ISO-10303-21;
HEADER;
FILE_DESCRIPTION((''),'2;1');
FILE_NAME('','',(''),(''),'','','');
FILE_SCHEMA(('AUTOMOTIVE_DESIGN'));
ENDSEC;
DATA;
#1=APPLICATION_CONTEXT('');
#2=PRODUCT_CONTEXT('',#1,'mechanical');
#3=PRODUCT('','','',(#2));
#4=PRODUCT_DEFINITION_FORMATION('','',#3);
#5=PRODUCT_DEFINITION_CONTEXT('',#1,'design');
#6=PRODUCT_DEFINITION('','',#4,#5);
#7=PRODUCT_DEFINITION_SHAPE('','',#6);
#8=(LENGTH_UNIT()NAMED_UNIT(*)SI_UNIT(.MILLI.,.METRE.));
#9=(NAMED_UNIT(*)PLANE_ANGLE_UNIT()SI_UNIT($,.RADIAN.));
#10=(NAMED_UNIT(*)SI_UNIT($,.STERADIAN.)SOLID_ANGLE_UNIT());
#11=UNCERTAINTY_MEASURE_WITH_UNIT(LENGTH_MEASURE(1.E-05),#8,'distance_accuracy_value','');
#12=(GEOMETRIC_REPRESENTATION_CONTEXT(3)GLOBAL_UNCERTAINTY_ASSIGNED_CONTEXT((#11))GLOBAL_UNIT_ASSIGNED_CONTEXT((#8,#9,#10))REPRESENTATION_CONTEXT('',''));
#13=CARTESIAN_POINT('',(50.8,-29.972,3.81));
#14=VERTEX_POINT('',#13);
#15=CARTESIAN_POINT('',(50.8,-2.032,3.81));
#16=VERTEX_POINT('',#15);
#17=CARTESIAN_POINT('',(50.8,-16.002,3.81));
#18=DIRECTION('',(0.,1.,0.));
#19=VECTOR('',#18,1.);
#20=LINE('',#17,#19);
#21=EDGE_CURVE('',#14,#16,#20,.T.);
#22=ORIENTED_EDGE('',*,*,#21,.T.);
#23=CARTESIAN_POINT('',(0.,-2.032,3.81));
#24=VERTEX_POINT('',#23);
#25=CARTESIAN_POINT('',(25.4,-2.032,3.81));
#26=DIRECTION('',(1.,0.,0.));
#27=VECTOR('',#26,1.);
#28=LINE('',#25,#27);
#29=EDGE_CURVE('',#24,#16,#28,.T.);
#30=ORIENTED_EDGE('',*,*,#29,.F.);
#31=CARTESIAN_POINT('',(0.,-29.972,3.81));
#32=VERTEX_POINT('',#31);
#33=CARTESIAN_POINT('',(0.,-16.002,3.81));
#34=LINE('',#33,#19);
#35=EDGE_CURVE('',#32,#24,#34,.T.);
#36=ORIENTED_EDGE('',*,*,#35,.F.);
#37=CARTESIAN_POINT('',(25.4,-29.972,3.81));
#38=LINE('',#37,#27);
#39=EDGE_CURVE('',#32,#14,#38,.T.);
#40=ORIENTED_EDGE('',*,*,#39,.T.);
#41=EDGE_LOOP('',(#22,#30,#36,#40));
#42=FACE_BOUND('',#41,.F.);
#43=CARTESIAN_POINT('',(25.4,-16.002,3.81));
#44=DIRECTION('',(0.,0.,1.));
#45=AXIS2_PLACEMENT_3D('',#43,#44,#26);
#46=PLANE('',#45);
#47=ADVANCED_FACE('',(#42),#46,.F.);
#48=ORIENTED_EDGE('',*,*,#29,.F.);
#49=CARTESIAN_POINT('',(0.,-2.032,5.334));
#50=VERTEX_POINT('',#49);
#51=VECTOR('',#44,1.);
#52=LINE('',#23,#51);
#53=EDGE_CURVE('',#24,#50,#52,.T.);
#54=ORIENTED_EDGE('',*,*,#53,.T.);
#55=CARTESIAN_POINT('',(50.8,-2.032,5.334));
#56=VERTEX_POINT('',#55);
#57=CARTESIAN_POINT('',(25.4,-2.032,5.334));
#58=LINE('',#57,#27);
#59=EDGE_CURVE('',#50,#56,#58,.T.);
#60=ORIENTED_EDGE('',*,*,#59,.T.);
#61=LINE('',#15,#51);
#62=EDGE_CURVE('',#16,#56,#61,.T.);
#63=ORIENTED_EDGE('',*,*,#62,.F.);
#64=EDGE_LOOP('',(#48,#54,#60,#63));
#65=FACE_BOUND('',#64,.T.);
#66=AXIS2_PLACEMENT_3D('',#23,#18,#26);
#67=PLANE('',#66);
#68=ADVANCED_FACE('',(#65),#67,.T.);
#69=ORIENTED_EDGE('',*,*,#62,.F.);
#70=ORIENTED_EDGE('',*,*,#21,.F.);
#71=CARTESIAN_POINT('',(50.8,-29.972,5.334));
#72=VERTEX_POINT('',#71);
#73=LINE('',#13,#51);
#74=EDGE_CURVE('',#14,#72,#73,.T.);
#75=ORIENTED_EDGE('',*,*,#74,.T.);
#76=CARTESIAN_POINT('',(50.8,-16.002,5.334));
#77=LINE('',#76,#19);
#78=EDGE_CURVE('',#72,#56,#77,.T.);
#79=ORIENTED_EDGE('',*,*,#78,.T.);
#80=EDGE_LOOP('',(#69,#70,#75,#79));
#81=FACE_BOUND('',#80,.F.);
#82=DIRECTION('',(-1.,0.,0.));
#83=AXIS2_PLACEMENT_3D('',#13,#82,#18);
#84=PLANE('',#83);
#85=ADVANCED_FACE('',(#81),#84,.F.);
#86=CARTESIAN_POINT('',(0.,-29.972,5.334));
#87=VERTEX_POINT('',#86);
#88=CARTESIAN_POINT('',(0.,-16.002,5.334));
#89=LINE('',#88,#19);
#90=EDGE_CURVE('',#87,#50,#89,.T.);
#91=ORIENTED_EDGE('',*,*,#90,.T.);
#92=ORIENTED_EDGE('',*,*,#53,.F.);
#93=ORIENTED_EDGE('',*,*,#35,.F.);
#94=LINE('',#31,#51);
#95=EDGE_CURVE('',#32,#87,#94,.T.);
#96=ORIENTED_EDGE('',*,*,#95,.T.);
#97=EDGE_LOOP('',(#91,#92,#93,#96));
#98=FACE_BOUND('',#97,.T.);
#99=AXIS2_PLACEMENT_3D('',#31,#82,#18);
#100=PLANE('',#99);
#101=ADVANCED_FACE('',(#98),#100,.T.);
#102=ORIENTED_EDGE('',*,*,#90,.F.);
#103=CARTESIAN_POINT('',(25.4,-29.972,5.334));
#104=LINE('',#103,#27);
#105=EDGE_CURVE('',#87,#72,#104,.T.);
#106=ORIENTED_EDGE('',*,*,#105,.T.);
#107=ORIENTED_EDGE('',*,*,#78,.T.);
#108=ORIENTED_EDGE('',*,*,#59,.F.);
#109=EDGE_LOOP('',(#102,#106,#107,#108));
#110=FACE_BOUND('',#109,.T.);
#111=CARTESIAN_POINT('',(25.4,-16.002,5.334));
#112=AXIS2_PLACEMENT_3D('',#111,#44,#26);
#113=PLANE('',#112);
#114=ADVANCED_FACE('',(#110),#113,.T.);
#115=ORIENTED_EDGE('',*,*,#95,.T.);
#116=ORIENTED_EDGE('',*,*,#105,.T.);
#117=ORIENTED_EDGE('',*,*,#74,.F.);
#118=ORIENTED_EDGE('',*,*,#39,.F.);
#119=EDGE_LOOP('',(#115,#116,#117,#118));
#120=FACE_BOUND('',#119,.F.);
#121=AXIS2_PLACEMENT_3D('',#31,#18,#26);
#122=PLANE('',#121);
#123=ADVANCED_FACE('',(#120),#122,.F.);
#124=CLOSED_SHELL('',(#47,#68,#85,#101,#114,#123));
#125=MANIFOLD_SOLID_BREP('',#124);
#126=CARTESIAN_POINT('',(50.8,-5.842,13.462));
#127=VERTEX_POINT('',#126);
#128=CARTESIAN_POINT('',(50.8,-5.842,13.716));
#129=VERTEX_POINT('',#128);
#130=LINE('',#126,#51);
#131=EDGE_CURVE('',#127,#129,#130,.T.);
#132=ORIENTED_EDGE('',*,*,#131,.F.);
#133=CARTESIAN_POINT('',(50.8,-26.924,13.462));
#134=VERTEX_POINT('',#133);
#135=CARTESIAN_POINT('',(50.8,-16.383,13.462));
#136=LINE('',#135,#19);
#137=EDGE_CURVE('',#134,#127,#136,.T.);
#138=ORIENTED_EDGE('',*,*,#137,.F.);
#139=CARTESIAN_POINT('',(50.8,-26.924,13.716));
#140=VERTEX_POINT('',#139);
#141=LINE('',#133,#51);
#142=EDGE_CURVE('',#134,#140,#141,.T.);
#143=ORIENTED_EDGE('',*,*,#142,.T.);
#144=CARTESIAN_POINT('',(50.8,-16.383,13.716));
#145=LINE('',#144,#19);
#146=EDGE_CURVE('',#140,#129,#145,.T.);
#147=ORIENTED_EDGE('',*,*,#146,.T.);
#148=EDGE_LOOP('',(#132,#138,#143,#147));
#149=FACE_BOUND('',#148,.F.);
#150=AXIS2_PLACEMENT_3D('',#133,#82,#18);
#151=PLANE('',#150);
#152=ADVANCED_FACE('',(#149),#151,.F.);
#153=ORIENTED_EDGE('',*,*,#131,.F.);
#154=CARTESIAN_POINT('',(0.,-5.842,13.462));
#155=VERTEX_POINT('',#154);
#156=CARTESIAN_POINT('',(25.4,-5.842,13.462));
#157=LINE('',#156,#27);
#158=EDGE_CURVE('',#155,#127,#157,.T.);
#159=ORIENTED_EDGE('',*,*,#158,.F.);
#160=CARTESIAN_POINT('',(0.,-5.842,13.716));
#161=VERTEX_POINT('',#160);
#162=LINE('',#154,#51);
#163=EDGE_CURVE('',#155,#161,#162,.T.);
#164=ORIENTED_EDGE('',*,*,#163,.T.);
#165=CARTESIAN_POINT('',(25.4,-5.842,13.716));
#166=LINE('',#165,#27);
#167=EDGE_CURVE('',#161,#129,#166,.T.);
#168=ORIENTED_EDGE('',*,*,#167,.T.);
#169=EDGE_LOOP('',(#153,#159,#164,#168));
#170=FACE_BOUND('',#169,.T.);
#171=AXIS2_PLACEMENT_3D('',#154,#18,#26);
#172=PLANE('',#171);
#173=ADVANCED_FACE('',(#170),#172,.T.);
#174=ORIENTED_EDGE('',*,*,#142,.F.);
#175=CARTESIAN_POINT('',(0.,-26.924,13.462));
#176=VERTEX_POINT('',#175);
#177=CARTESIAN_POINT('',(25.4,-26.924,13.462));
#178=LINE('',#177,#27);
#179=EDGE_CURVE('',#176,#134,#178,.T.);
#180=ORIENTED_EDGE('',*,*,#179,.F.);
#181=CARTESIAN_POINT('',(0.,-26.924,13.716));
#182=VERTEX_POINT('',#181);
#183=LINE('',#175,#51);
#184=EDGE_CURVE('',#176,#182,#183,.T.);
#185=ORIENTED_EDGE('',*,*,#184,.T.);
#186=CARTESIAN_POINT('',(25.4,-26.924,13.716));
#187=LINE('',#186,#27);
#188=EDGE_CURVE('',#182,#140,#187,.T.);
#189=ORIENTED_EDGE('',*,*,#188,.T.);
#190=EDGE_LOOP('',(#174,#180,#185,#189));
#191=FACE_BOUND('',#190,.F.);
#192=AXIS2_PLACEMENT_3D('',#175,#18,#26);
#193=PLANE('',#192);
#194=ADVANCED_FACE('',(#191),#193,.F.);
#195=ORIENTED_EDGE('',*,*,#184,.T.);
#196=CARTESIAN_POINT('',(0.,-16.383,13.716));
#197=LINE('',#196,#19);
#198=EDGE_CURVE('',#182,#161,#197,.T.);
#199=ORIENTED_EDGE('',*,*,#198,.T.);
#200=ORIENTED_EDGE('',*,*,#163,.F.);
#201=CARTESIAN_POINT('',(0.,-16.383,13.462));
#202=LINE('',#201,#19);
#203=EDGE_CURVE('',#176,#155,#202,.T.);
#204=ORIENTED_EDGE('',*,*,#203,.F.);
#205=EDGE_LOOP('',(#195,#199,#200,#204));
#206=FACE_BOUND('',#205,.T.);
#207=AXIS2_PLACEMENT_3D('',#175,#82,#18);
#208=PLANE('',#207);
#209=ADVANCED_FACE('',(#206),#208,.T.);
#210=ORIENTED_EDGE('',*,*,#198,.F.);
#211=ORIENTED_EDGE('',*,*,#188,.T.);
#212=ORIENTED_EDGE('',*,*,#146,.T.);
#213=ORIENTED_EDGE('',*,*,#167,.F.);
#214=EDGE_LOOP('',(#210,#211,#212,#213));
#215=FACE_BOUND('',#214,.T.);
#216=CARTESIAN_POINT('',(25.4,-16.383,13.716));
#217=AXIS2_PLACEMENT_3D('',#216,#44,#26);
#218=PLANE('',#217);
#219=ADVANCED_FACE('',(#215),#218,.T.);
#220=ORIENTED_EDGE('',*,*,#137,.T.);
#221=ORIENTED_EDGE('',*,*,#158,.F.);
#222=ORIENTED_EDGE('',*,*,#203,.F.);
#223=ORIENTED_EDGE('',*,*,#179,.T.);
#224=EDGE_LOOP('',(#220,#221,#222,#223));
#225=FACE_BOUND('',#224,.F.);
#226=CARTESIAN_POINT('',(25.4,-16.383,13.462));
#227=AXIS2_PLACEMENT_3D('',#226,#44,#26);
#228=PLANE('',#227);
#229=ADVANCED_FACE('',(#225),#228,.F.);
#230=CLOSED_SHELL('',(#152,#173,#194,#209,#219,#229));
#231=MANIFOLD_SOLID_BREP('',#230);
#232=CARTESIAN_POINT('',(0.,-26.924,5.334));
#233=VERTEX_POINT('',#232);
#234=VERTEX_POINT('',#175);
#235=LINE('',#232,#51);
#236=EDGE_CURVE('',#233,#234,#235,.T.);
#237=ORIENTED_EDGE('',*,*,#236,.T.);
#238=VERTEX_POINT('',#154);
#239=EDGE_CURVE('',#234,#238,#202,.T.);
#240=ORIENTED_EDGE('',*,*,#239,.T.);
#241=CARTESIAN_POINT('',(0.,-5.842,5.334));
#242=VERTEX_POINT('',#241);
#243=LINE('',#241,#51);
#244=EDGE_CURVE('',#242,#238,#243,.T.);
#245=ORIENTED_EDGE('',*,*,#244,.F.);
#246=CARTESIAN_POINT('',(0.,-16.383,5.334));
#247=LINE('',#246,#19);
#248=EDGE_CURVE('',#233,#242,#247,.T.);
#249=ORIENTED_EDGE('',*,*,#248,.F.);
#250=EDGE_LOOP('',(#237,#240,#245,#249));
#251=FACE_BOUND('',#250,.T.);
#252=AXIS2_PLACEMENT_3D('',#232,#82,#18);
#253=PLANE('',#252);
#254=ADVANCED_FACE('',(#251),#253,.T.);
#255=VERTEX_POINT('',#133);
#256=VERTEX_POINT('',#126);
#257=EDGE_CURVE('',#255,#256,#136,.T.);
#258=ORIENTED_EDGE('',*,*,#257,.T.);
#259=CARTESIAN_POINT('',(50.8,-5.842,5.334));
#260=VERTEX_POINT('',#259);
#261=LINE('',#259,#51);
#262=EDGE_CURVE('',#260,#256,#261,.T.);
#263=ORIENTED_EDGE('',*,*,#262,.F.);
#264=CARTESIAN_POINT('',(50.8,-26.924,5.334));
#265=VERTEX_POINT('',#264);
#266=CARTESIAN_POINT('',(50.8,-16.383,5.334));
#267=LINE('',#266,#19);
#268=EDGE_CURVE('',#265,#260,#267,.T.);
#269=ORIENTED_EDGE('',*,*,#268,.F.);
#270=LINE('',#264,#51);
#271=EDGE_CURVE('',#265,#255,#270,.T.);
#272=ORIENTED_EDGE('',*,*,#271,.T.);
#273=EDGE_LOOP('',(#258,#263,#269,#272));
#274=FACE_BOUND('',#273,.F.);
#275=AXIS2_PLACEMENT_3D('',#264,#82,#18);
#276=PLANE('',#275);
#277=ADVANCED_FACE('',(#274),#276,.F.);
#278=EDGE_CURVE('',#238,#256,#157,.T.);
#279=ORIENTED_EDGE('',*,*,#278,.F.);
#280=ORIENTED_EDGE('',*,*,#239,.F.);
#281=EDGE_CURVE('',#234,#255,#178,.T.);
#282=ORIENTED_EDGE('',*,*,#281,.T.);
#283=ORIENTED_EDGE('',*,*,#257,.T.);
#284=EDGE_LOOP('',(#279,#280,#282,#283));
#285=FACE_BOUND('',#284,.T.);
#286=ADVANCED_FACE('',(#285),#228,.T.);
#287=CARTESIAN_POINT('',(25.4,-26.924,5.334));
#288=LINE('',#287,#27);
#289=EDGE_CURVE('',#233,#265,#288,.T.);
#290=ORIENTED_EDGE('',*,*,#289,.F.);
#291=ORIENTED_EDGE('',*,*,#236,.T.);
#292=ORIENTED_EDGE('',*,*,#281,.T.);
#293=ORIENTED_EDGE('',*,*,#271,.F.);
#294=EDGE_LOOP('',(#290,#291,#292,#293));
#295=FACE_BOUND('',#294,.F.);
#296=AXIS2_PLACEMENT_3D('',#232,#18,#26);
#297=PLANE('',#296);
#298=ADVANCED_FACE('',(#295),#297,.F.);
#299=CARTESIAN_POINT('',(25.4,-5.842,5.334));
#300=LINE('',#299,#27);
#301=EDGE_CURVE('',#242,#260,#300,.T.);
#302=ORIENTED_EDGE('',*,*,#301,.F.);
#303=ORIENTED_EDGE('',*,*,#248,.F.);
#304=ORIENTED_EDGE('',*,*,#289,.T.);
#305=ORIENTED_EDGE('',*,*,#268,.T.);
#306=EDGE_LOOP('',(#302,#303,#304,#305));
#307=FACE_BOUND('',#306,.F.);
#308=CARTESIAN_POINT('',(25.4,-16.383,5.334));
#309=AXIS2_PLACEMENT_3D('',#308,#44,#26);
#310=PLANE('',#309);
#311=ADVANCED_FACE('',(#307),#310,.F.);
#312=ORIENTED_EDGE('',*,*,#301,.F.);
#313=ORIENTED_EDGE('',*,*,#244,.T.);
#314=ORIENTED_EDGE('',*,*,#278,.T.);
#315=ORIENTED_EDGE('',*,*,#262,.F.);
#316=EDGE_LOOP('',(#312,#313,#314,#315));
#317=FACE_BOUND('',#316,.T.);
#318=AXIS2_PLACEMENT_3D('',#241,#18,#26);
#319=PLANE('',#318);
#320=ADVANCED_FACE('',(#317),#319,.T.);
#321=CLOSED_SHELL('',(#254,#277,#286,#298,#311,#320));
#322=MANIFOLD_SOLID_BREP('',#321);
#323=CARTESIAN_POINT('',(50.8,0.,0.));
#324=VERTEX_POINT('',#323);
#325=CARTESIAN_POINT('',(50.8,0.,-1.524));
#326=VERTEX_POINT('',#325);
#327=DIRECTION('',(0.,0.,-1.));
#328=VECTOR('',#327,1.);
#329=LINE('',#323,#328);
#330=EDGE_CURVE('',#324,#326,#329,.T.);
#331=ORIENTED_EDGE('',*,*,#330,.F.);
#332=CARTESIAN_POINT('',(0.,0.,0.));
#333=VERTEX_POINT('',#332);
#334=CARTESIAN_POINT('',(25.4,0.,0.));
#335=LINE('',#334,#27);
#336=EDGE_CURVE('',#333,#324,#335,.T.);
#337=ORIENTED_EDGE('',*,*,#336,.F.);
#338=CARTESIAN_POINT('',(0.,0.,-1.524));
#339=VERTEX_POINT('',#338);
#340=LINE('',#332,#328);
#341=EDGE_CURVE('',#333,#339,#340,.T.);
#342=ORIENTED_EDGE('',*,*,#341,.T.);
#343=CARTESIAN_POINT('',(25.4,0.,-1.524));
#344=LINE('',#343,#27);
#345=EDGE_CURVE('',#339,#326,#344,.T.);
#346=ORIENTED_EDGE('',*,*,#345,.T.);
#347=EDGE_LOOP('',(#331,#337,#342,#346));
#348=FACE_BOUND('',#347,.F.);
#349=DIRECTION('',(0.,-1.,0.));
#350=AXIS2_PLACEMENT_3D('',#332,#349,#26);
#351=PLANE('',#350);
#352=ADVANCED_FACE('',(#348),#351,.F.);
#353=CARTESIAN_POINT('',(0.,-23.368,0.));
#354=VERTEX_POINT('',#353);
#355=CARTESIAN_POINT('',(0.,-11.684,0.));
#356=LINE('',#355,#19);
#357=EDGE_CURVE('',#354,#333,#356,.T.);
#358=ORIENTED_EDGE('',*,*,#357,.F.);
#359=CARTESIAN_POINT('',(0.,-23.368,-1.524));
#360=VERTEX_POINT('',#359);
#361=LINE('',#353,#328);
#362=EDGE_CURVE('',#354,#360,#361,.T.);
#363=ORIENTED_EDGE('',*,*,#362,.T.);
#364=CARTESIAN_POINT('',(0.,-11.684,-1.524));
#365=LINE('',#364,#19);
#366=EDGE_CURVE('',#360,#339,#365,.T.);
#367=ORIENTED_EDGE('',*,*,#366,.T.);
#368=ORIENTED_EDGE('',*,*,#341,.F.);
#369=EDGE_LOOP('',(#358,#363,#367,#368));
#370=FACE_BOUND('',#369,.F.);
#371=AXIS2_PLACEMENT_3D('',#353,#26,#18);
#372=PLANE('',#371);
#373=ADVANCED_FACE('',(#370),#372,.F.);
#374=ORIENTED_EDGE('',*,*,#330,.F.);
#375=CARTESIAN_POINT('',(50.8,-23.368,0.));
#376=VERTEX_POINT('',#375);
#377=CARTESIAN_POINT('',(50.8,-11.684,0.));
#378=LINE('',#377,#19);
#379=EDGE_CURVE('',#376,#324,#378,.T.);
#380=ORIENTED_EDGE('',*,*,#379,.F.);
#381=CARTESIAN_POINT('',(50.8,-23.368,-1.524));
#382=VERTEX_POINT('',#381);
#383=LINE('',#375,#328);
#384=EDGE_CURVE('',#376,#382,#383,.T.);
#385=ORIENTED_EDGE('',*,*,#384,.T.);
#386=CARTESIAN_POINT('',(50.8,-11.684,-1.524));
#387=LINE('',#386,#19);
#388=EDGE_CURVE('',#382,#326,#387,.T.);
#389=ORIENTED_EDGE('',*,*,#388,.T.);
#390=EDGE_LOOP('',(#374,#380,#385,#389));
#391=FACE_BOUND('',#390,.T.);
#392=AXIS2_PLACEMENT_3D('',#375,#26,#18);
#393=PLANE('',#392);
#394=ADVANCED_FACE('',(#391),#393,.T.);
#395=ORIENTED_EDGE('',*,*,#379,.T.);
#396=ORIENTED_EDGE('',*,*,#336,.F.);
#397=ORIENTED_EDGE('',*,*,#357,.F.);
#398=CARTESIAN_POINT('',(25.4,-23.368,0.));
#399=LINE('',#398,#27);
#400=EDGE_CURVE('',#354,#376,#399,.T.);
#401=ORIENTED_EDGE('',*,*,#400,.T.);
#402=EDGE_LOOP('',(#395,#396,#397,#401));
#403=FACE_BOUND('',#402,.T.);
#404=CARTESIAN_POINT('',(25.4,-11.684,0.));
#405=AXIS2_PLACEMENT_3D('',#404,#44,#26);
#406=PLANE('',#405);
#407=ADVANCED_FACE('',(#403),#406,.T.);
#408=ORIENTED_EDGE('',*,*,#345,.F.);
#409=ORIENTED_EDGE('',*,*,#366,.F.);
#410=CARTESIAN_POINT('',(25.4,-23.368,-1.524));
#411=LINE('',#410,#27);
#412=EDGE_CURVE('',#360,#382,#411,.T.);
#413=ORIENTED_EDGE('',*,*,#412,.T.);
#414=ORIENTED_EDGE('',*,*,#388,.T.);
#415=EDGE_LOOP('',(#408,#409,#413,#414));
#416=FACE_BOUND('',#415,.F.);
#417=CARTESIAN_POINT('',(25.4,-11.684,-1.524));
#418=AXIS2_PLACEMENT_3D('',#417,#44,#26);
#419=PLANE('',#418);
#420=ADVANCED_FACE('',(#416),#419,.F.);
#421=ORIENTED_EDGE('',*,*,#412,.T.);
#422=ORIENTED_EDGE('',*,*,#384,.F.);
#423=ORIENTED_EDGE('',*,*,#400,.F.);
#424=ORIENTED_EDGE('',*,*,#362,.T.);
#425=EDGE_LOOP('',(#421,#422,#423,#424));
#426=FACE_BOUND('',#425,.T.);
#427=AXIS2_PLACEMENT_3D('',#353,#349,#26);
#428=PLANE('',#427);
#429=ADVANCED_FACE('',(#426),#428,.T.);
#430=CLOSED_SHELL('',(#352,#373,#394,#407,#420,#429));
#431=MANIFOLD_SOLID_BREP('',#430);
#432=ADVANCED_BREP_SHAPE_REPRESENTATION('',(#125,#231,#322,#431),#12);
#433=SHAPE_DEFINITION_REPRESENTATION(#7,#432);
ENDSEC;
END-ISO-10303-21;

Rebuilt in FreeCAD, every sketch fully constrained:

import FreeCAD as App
import Part
import Sketcher
from FreeCAD import Vector
Q = App.Units.Quantity


def add_polygon(sketch, points):
    """Adds a closed chain of lines whose ends are joined by coincident constraints."""
    first, n = sketch.GeometryCount, len(points)
    for a, b in zip(points, points[1:] + points[:1]):
        sketch.addGeometry(Part.LineSegment(App.Vector(*a, 0), App.Vector(*b, 0)), False)
    for i in range(n):
        sketch.addConstraint(Sketcher.Constraint("Coincident", first + i, 2, first + (i + 1) % n, 1))

doc = App.newDocument("Part")
params = doc.addObject("Spreadsheet::Sheet", "Params")
for row, (alias, value) in enumerate([
    ("sketch1_width", "2 in"),
    ("sketch1_height", "0.92 in"),
    ("pad1_length", "0.06 in"),
    ("sketch2_width", "2 in"),
    ("sketch2_height", "1.1 in"),
    ("pad2_length", "0.06 in"),
    ("sketch3_width", "2 in"),
    ("sketch3_height", "0.83 in"),
    ("pad3_length", "0.32 in"),
    ("sketch4_width", "2 in"),
    ("sketch4_height", "0.83 in"),
    ("pad4_length", "0.01 in"),
], start=1):
    params.set(f"A{row}", alias)
    params.set(f"B{row}", "=" + value)
    params.setAlias(f"B{row}", alias)

body = doc.addObject("PartDesign::Body", "Body")

sketch1 = doc.addObject("Sketcher::SketchObject", "Sketch")
body.addObject(sketch1)
sketch1.AttachmentSupport = (doc.XY_Plane, [""])
sketch1.MapMode = "FlatFace"
add_polygon(sketch1, [(0, 0), (0, -23.368), (50.8, -23.368), (50.8, 0)])
sketch1.addConstraint([
    Sketcher.Constraint("Vertical", 0),
    Sketcher.Constraint("Horizontal", 1),
    Sketcher.Constraint("Vertical", 2),
    Sketcher.Constraint("Horizontal", 3),
    Sketcher.Constraint("Coincident", 3, 2, -1, 1),
    Sketcher.Constraint("DistanceX", 1, 1, 1, 2, Q("2 in")),
    Sketcher.Constraint("DistanceY", 0, 2, 0, 1, Q("0.92 in")),
])
sketch1.setExpression("Constraints[9]", "Params.sketch1_width")
sketch1.setExpression("Constraints[10]", "Params.sketch1_height")
pad1 = doc.addObject("PartDesign::Pad", "Pad")
body.addObject(pad1)
pad1.Profile = sketch1
pad1.setExpression("Length", "Params.pad1_length")
pad1.Reversed = True
body2 = doc.addObject("PartDesign::Body", "Body001")

sketch2 = doc.addObject("Sketcher::SketchObject", "Sketch001")
body2.addObject(sketch2)
sketch2.AttachmentSupport = (doc.getObject("XY_Plane001"), [""])
sketch2.MapMode = "FlatFace"
sketch2.AttachmentOffset = App.Placement(Vector(0, 0, 0.15 * 25.4), App.Rotation())
add_polygon(sketch2, [(0, -2.032), (0, -29.972), (50.8, -29.972), (50.8, -2.032)])
sketch2.addConstraint([
    Sketcher.Constraint("Vertical", 0),
    Sketcher.Constraint("Horizontal", 1),
    Sketcher.Constraint("Vertical", 2),
    Sketcher.Constraint("Horizontal", 3),
    Sketcher.Constraint("PointOnObject", 0, 2, -2),
    Sketcher.Constraint("DistanceX", 1, 1, 1, 2, Q("2 in")),
    Sketcher.Constraint("DistanceY", 0, 2, 0, 1, Q("1.1 in")),
    Sketcher.Constraint("DistanceY", 0, 2, -1, 1, Q("1.18 in")),
])
sketch2.setExpression("Constraints[9]", "Params.sketch2_width")
sketch2.setExpression("Constraints[10]", "Params.sketch2_height")
pad2 = doc.addObject("PartDesign::Pad", "Pad001")
body2.addObject(pad2)
pad2.Profile = sketch2
pad2.setExpression("Length", "Params.pad2_length")
body3 = doc.addObject("PartDesign::Body", "Body002")

sketch3 = doc.addObject("Sketcher::SketchObject", "Sketch002")
body3.addObject(sketch3)
sketch3.AttachmentSupport = (doc.getObject("XY_Plane002"), [""])
sketch3.MapMode = "FlatFace"
sketch3.AttachmentOffset = App.Placement(Vector(0, 0, 0.21 * 25.4), App.Rotation())
add_polygon(sketch3, [(0, -5.842), (0, -26.924), (50.8, -26.924), (50.8, -5.842)])
sketch3.addConstraint([
    Sketcher.Constraint("Vertical", 0),
    Sketcher.Constraint("Horizontal", 1),
    Sketcher.Constraint("Vertical", 2),
    Sketcher.Constraint("Horizontal", 3),
    Sketcher.Constraint("PointOnObject", 0, 2, -2),
    Sketcher.Constraint("DistanceX", 1, 1, 1, 2, Q("2 in")),
    Sketcher.Constraint("DistanceY", 0, 2, 0, 1, Q("0.83 in")),
    Sketcher.Constraint("DistanceY", 0, 2, -1, 1, Q("1.06 in")),
])
sketch3.setExpression("Constraints[9]", "Params.sketch3_width")
sketch3.setExpression("Constraints[10]", "Params.sketch3_height")
pad3 = doc.addObject("PartDesign::Pad", "Pad002")
body3.addObject(pad3)
pad3.Profile = sketch3
pad3.setExpression("Length", "Params.pad3_length")
body4 = doc.addObject("PartDesign::Body", "Body003")

sketch4 = doc.addObject("Sketcher::SketchObject", "Sketch003")
body4.addObject(sketch4)
sketch4.AttachmentSupport = (doc.getObject("XY_Plane003"), [""])
sketch4.MapMode = "FlatFace"
sketch4.AttachmentOffset = App.Placement(Vector(0, 0, 0.53 * 25.4), App.Rotation())
add_polygon(sketch4, [(0, -5.842), (0, -26.924), (50.8, -26.924), (50.8, -5.842)])
sketch4.addConstraint([
    Sketcher.Constraint("Vertical", 0),
    Sketcher.Constraint("Horizontal", 1),
    Sketcher.Constraint("Vertical", 2),
    Sketcher.Constraint("Horizontal", 3),
    Sketcher.Constraint("PointOnObject", 0, 2, -2),
    Sketcher.Constraint("DistanceX", 1, 1, 1, 2, Q("2 in")),
    Sketcher.Constraint("DistanceY", 0, 2, 0, 1, Q("0.83 in")),
    Sketcher.Constraint("DistanceY", 0, 2, -1, 1, Q("1.06 in")),
])
sketch4.setExpression("Constraints[9]", "Params.sketch4_width")
sketch4.setExpression("Constraints[10]", "Params.sketch4_height")
pad4 = doc.addObject("PartDesign::Pad", "Pad003")
body4.addObject(pad4)
pad4.Profile = sketch4
pad4.setExpression("Length", "Params.pad4_length")

doc.recompute()
